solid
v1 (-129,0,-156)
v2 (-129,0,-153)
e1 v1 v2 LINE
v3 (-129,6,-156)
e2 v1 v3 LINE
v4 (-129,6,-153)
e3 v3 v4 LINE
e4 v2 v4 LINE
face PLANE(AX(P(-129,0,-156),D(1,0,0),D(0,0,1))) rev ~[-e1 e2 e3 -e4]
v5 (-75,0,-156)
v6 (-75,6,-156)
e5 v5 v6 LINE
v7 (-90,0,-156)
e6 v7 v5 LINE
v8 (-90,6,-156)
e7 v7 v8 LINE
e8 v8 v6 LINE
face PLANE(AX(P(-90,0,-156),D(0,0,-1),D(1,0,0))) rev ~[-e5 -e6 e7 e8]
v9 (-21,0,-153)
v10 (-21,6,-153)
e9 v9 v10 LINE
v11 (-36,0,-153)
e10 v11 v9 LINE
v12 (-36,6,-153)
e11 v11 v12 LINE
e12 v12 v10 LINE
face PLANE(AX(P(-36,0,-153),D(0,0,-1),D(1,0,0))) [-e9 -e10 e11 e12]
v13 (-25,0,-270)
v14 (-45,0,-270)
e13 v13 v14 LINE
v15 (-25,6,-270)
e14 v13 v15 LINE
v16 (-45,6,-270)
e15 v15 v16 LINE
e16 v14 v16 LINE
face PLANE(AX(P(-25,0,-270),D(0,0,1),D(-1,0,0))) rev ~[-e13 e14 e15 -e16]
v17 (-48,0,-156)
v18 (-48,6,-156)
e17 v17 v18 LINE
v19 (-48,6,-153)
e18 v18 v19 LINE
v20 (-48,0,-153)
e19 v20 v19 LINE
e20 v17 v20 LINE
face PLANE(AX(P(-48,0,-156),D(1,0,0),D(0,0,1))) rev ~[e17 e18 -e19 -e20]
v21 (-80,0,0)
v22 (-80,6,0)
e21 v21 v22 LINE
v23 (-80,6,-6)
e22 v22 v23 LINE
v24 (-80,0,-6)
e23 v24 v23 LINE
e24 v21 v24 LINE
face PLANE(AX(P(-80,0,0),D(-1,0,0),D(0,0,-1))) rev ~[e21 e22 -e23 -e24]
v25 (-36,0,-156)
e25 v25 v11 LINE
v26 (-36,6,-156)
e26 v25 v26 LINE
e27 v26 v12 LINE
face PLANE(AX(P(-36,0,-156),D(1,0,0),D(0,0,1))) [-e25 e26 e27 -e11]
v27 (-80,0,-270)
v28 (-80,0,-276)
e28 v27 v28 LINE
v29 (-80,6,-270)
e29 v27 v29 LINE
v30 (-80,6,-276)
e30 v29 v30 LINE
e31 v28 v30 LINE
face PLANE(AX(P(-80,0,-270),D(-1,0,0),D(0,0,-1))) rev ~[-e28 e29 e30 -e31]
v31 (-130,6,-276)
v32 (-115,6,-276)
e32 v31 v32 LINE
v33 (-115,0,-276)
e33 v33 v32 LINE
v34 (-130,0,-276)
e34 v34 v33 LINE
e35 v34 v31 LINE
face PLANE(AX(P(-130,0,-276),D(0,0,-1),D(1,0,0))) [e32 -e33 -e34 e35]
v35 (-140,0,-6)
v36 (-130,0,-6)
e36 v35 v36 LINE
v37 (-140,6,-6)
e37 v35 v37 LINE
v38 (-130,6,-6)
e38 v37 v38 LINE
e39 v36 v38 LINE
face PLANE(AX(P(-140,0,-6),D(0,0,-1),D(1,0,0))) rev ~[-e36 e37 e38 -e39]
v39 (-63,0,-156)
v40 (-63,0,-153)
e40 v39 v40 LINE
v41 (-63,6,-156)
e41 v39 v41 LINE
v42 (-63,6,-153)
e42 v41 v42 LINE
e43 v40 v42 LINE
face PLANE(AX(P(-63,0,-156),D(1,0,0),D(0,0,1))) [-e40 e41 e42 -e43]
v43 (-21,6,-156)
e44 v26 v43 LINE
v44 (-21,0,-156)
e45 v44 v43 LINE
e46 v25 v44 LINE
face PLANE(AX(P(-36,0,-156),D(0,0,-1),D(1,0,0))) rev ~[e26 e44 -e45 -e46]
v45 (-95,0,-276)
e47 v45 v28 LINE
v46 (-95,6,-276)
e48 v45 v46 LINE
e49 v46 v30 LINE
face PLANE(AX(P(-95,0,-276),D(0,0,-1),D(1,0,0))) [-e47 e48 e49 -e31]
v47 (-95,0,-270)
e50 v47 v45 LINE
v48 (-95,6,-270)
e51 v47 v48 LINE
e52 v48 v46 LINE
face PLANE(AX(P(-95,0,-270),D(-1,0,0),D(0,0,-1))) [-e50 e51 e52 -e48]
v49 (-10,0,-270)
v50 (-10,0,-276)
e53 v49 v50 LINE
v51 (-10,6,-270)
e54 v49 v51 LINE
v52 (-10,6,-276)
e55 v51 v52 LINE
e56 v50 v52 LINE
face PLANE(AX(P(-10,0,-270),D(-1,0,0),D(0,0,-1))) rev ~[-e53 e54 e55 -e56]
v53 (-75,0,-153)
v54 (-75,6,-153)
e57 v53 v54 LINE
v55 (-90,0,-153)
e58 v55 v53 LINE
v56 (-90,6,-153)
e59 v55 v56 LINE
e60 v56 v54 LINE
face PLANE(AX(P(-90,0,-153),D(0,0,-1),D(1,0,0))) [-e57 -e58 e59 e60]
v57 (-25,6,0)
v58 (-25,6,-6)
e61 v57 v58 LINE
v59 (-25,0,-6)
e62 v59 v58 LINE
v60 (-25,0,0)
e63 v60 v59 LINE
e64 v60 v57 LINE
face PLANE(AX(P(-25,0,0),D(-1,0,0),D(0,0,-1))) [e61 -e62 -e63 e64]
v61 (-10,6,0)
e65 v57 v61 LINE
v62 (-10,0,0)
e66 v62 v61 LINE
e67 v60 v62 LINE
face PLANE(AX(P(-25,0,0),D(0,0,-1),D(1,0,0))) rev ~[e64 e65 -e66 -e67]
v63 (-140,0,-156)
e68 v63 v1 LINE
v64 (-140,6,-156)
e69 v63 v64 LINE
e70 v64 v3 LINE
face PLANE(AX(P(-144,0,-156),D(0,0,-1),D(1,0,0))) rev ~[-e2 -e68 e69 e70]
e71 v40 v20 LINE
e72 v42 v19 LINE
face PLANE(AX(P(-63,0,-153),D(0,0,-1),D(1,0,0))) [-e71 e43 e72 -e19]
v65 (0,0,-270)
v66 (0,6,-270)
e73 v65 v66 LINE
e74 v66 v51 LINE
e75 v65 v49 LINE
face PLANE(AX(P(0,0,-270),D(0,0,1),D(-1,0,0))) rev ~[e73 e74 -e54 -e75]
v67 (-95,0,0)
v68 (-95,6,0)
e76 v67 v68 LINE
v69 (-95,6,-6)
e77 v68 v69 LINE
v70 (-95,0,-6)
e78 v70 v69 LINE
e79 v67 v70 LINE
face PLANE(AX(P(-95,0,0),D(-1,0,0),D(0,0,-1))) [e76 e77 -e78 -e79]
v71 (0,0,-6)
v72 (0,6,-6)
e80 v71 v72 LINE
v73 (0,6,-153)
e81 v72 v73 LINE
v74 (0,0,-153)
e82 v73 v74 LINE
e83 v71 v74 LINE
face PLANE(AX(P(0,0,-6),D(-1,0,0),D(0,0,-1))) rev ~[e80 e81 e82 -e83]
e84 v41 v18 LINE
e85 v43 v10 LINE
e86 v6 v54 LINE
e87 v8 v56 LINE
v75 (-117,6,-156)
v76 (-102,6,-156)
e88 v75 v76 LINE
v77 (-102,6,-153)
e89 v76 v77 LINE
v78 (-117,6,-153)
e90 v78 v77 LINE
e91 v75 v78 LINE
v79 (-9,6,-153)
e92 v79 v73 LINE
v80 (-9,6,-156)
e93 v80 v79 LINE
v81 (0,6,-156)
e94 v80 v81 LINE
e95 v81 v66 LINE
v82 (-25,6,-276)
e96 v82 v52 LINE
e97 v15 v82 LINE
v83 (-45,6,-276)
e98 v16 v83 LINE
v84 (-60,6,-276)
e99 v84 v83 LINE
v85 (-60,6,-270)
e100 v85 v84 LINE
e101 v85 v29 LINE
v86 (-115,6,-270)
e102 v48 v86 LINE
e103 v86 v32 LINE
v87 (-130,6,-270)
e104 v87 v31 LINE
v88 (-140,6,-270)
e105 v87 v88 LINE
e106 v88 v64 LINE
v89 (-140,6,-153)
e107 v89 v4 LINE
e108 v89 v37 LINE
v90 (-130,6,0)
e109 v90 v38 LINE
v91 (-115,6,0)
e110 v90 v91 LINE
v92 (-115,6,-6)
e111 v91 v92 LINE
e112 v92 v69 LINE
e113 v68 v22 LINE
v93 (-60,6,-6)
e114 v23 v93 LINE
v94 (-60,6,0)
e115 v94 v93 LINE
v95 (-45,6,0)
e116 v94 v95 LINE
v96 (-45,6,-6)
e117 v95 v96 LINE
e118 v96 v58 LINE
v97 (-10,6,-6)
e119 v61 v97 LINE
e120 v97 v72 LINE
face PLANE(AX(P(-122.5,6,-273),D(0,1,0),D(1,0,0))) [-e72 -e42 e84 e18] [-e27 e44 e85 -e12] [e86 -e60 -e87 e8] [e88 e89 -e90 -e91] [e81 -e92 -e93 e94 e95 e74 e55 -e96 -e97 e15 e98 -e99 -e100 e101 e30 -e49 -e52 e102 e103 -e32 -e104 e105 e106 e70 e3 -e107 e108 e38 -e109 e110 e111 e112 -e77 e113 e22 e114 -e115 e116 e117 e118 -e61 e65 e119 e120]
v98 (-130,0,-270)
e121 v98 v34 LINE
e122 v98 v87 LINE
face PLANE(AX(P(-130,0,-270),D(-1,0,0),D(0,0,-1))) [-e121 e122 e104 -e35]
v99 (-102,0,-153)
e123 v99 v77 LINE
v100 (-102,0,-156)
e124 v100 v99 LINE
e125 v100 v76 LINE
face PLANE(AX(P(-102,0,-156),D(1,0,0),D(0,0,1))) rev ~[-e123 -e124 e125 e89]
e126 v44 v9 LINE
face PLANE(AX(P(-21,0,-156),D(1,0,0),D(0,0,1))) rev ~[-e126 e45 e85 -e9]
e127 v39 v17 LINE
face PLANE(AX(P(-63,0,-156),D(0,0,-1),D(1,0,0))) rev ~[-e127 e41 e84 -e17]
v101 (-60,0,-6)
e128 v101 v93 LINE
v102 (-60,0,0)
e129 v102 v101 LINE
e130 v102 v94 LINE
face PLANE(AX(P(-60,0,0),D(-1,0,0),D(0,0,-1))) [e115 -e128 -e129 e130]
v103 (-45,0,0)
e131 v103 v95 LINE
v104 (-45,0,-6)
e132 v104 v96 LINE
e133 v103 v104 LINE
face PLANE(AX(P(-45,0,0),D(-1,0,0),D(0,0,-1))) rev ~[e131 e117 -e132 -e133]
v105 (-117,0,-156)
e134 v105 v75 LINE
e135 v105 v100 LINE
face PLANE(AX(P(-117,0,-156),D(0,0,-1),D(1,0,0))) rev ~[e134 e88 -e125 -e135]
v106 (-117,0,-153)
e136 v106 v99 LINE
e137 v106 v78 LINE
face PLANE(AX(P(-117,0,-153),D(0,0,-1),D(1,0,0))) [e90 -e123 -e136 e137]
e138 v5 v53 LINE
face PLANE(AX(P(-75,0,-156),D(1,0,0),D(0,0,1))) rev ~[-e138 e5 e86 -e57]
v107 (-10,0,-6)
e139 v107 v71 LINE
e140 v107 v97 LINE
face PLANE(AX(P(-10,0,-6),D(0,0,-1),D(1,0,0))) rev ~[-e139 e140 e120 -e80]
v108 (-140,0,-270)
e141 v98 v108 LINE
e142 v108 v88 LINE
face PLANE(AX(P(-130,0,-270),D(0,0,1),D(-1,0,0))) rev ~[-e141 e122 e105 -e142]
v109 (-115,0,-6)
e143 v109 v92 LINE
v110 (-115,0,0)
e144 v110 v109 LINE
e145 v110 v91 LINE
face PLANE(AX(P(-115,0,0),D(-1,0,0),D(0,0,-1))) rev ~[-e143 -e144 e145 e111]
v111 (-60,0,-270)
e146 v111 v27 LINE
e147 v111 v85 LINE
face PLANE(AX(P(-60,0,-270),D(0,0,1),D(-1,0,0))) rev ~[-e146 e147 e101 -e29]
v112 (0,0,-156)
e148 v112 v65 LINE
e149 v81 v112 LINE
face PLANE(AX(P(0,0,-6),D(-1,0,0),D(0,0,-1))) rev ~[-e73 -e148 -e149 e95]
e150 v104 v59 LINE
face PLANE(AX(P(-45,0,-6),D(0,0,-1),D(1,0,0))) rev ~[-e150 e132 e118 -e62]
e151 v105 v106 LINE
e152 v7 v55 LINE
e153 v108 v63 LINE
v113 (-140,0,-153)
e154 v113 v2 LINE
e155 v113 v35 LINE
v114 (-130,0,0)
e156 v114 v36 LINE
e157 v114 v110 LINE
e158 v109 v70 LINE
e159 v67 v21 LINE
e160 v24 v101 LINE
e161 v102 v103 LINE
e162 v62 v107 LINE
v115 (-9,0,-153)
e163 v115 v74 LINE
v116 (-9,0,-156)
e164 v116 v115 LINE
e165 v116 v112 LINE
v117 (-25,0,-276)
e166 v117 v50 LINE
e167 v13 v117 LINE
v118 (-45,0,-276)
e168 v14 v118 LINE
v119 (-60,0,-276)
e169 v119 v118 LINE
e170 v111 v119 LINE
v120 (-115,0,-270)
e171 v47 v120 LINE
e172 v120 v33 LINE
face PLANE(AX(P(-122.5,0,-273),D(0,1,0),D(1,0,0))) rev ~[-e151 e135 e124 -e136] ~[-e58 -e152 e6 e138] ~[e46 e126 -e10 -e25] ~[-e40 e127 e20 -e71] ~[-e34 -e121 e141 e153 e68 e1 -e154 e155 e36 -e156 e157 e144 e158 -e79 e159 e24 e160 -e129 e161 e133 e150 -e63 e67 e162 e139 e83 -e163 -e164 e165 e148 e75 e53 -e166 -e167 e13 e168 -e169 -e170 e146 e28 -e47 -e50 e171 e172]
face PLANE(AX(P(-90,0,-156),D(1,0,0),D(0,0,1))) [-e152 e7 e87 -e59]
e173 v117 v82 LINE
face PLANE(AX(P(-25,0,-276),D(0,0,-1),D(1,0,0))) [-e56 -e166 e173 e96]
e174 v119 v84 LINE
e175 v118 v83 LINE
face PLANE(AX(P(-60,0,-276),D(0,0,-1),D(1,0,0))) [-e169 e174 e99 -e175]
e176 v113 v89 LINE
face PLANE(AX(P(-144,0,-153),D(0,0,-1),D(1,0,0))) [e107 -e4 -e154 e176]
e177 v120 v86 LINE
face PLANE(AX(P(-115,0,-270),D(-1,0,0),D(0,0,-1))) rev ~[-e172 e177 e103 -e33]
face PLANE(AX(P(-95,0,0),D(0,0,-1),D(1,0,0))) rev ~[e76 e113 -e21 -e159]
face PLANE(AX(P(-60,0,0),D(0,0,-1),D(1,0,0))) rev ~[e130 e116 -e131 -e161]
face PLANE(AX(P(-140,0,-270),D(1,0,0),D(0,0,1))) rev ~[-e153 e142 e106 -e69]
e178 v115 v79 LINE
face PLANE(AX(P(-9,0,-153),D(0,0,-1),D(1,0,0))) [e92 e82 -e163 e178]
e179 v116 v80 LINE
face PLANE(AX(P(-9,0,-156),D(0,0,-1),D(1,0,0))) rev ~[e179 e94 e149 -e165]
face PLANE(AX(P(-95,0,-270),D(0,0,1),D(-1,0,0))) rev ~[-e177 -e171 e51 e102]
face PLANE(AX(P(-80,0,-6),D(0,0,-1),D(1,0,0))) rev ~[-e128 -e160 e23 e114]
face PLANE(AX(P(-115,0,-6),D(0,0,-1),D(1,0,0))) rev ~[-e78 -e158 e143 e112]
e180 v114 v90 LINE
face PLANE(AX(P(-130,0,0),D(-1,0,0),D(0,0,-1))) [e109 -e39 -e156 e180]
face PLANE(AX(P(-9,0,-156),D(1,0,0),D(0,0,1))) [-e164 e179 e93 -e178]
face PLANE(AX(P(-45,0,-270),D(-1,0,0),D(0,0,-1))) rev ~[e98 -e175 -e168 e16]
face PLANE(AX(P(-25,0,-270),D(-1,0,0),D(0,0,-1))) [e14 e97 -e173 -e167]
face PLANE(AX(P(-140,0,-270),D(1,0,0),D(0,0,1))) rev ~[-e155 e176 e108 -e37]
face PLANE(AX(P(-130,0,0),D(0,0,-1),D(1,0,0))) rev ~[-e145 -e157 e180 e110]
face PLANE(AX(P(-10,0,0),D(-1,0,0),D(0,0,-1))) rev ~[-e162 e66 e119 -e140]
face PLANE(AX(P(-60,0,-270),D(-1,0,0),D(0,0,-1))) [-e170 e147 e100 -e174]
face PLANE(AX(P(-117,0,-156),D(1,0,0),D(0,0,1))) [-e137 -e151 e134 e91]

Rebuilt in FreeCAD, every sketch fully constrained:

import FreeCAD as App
import Part
import Sketcher
from FreeCAD import Vector
Q = App.Units.Quantity


def add_polygon(sketch, points):
    """Adds a closed chain of lines whose ends are joined by coincident constraints."""
    first, n = sketch.GeometryCount, len(points)
    for a, b in zip(points, points[1:] + points[:1]):
        sketch.addGeometry(Part.LineSegment(App.Vector(*a, 0), App.Vector(*b, 0)), False)
    for i in range(n):
        sketch.addConstraint(Sketcher.Constraint("Coincident", first + i, 2, first + (i + 1) % n, 1))

doc = App.newDocument("Part")
body = doc.addObject("PartDesign::Body", "Body")

sketch1 = body.newObject("Sketcher::SketchObject", "Sketch")
sketch1.AttachmentSupport = (doc.getObject("XZ_Plane"), [""])
sketch1.MapMode = "FlatFace"
add_polygon(sketch1, [(-130, -276), (-130, -270), (-140, -270), (-140, -6), (-130, -6), (-130, 0), (-115, 0), (-115, -6), (-95, -6), (-95, 0), (-80, 0), (-80, -6), (-60, -6), (-60, 0), (-45, 0), (-45, -6), (-25, -6), (-25, 0), (-10, 0), (-10, -6), (0, -6), (0, -270), (-10, -270), (-10, -276), (-25, -276), (-25, -270), (-45, -270), (-45, -276), (-60, -276), (-60, -270), (-80, -270), (-80, -276), (-95, -276), (-95, -270), (-115, -270), (-115, -276)])
sketch1.addConstraint(Sketcher.Constraint("Vertical", 0))
sketch1.addConstraint(Sketcher.Constraint("Horizontal", 1))
sketch1.addConstraint(Sketcher.Constraint("Vertical", 2))
sketch1.addConstraint(Sketcher.Constraint("Horizontal", 3))
sketch1.addConstraint(Sketcher.Constraint("Vertical", 4))
sketch1.addConstraint(Sketcher.Constraint("Horizontal", 5))
sketch1.addConstraint(Sketcher.Constraint("Vertical", 6))
sketch1.addConstraint(Sketcher.Constraint("Horizontal", 7))
sketch1.addConstraint(Sketcher.Constraint("Vertical", 8))
sketch1.addConstraint(Sketcher.Constraint("Horizontal", 9))
sketch1.addConstraint(Sketcher.Constraint("Vertical", 10))
sketch1.addConstraint(Sketcher.Constraint("Horizontal", 11))
sketch1.addConstraint(Sketcher.Constraint("Vertical", 12))
sketch1.addConstraint(Sketcher.Constraint("Horizontal", 13))
sketch1.addConstraint(Sketcher.Constraint("Vertical", 14))
sketch1.addConstraint(Sketcher.Constraint("Horizontal", 15))
sketch1.addConstraint(Sketcher.Constraint("Vertical", 16))
sketch1.addConstraint(Sketcher.Constraint("Horizontal", 17))
sketch1.addConstraint(Sketcher.Constraint("Vertical", 18))
sketch1.addConstraint(Sketcher.Constraint("Horizontal", 19))
sketch1.addConstraint(Sketcher.Constraint("Vertical", 20))
sketch1.addConstraint(Sketcher.Constraint("Horizontal", 21))
sketch1.addConstraint(Sketcher.Constraint("Vertical", 22))
sketch1.addConstraint(Sketcher.Constraint("Horizontal", 23))
sketch1.addConstraint(Sketcher.Constraint("Vertical", 24))
sketch1.addConstraint(Sketcher.Constraint("Horizontal", 25))
sketch1.addConstraint(Sketcher.Constraint("Vertical", 26))
sketch1.addConstraint(Sketcher.Constraint("Horizontal", 27))
sketch1.addConstraint(Sketcher.Constraint("Vertical", 28))
sketch1.addConstraint(Sketcher.Constraint("Horizontal", 29))
sketch1.addConstraint(Sketcher.Constraint("Vertical", 30))
sketch1.addConstraint(Sketcher.Constraint("Horizontal", 31))
sketch1.addConstraint(Sketcher.Constraint("Vertical", 32))
sketch1.addConstraint(Sketcher.Constraint("Horizontal", 33))
sketch1.addConstraint(Sketcher.Constraint("Vertical", 34))
sketch1.addConstraint(Sketcher.Constraint("Horizontal", 35))
sketch1.addConstraint(Sketcher.Constraint("PointOnObject", 4, 2, -1))
sketch1.addConstraint(Sketcher.Constraint("PointOnObject", 8, 2, -1))
sketch1.addConstraint(Sketcher.Constraint("PointOnObject", 12, 2, -1))
sketch1.addConstraint(Sketcher.Constraint("PointOnObject", 16, 2, -1))
sketch1.addConstraint(Sketcher.Constraint("PointOnObject", 19, 2, -2))
sketch1.addConstraint(Sketcher.Constraint("Horizontal", 3, 2, 6, 2))
sketch1.addConstraint(Sketcher.Constraint("Horizontal", 7, 2, 10, 2))
sketch1.addConstraint(Sketcher.Constraint("Horizontal", 11, 2, 14, 2))
sketch1.addConstraint(Sketcher.Constraint("Horizontal", 15, 2, 18, 2))
sketch1.addConstraint(Sketcher.Constraint("Horizontal", 1, 2, 20, 2))
sketch1.addConstraint(Sketcher.Constraint("Horizontal", 21, 2, 24, 2))
sketch1.addConstraint(Sketcher.Constraint("Horizontal", 23, 2, 26, 2))
sketch1.addConstraint(Sketcher.Constraint("Horizontal", 25, 2, 28, 2))
sketch1.addConstraint(Sketcher.Constraint("Horizontal", 27, 2, 30, 2))
sketch1.addConstraint(Sketcher.Constraint("Horizontal", 29, 2, 32, 2))
sketch1.addConstraint(Sketcher.Constraint("Horizontal", 31, 2, 34, 2))
sketch1.addConstraint(Sketcher.Constraint("Vertical", 0, 2, 3, 2))
sketch1.addConstraint(Sketcher.Constraint("Vertical", 18, 2, 21, 2))
sketch1.addConstraint(Sketcher.Constraint("Vertical", 16, 2, 23, 2))
sketch1.addConstraint(Sketcher.Constraint("Vertical", 14, 2, 25, 2))
sketch1.addConstraint(Sketcher.Constraint("Vertical", 12, 2, 27, 2))
sketch1.addConstraint(Sketcher.Constraint("Vertical", 10, 2, 29, 2))
sketch1.addConstraint(Sketcher.Constraint("Vertical", 8, 2, 31, 2))
sketch1.addConstraint(Sketcher.Constraint("Vertical", 6, 2, 33, 2))
sketch1.addConstraint(Sketcher.Constraint("Equal", 5, 9))
sketch1.addConstraint(Sketcher.Constraint("Equal", 7, 11))
sketch1.addConstraint(Sketcher.Constraint("Equal", 9, 13))
sketch1.addConstraint(Sketcher.Constraint("Equal", 11, 15))
sketch1.addConstraint(Sketcher.Constraint("Equal", 13, 17))
sketch1.addConstraint(Sketcher.Constraint("Equal", 3, 19))
sketch1.addConstraint(Sketcher.Constraint("Equal", 0, 4))
sketch1.addConstraint(Sketcher.Constraint("DistanceX", 1, 2, 1, 1, Q("10 mm")))
sketch1.addConstraint(Sketcher.Constraint("DistanceX", 5, 1, 5, 2, Q("15 mm")))
sketch1.addConstraint(Sketcher.Constraint("DistanceX", 7, 1, 7, 2, Q("20 mm")))
sketch1.addConstraint(Sketcher.Constraint("DistanceY", 0, 1, 0, 2, Q("6 mm")))
sketch1.addConstraint(Sketcher.Constraint("DistanceY", 2, 1, 2, 2, Q("264 mm")))
pad1 = body.newObject("PartDesign::Pad", "Pad")
pad1.Profile = sketch1
pad1.Length = 6
pad1.Reversed = True

sketch2 = body.newObject("Sketcher::SketchObject", "Sketch001")
sketch2.AttachmentSupport = (doc.getObject("XZ_Plane"), [""])
sketch2.MapMode = "FlatFace"
add_polygon(sketch2, [(-9, -153), (-9, -156), (6, -156), (6, -153)])
add_polygon(sketch2, [(-36, -153), (-36, -156), (-21, -156), (-21, -153)])
add_polygon(sketch2, [(-63, -153), (-63, -156), (-48, -156), (-48, -153)])
add_polygon(sketch2, [(-90, -153), (-90, -156), (-75, -156), (-75, -153)])
add_polygon(sketch2, [(-117, -153), (-117, -156), (-102, -156), (-102, -153)])
add_polygon(sketch2, [(-144, -153), (-144, -156), (-129, -156), (-129, -153)])
sketch2.addConstraint(Sketcher.Constraint("Vertical", 0))
sketch2.addConstraint(Sketcher.Constraint("Horizontal", 1))
sketch2.addConstraint(Sketcher.Constraint("Vertical", 2))
sketch2.addConstraint(Sketcher.Constraint("Horizontal", 3))
sketch2.addConstraint(Sketcher.Constraint("Vertical", 4))
sketch2.addConstraint(Sketcher.Constraint("Horizontal", 5))
sketch2.addConstraint(Sketcher.Constraint("Vertical", 6))
sketch2.addConstraint(Sketcher.Constraint("Horizontal", 7))
sketch2.addConstraint(Sketcher.Constraint("Vertical", 8))
sketch2.addConstraint(Sketcher.Constraint("Horizontal", 9))
sketch2.addConstraint(Sketcher.Constraint("Vertical", 10))
sketch2.addConstraint(Sketcher.Constraint("Horizontal", 11))
sketch2.addConstraint(Sketcher.Constraint("Vertical", 12))
sketch2.addConstraint(Sketcher.Constraint("Horizontal", 13))
sketch2.addConstraint(Sketcher.Constraint("Vertical", 14))
sketch2.addConstraint(Sketcher.Constraint("Horizontal", 15))
sketch2.addConstraint(Sketcher.Constraint("Vertical", 16))
sketch2.addConstraint(Sketcher.Constraint("Horizontal", 17))
sketch2.addConstraint(Sketcher.Constraint("Vertical", 18))
sketch2.addConstraint(Sketcher.Constraint("Horizontal", 19))
sketch2.addConstraint(Sketcher.Constraint("Vertical", 20))
sketch2.addConstraint(Sketcher.Constraint("Horizontal", 21))
sketch2.addConstraint(Sketcher.Constraint("Vertical", 22))
sketch2.addConstraint(Sketcher.Constraint("Horizontal", 23))
sketch2.addConstraint(Sketcher.Constraint("Horizontal", 1, 2, 4, 2))
sketch2.addConstraint(Sketcher.Constraint("Horizontal", 3, 2, 6, 2))
sketch2.addConstraint(Sketcher.Constraint("Horizontal", 5, 2, 8, 2))
sketch2.addConstraint(Sketcher.Constraint("Horizontal", 7, 2, 10, 2))
sketch2.addConstraint(Sketcher.Constraint("Horizontal", 9, 2, 12, 2))
sketch2.addConstraint(Sketcher.Constraint("Horizontal", 11, 2, 14, 2))
sketch2.addConstraint(Sketcher.Constraint("Horizontal", 13, 2, 16, 2))
sketch2.addConstraint(Sketcher.Constraint("Horizontal", 15, 2, 18, 2))
sketch2.addConstraint(Sketcher.Constraint("Horizontal", 17, 2, 20, 2))
sketch2.addConstraint(Sketcher.Constraint("Horizontal", 19, 2, 22, 2))
sketch2.addConstraint(Sketcher.Constraint("Equal", 3, 5))
sketch2.addConstraint(Sketcher.Constraint("Equal", 7, 9))
sketch2.addConstraint(Sketcher.Constraint("Equal", 11, 13))
sketch2.addConstraint(Sketcher.Constraint("Equal", 15, 17))
sketch2.addConstraint(Sketcher.Constraint("Equal", 19, 21))
sketch2.addConstraint(Sketcher.Constraint("DistanceX", 1, 1, 1, 2, Q("15 mm")))
sketch2.addConstraint(Sketcher.Constraint("DistanceY", 0, 2, 0, 1, Q("3 mm")))
sketch2.addConstraint(Sketcher.Constraint("DistanceX", 0, 2, -1, 1, Q("9 mm")))
sketch2.addConstraint(Sketcher.Constraint("DistanceY", 0, 2, -1, 1, Q("156 mm")))
sketch2.addConstraint(Sketcher.Constraint("DistanceX", 4, 2, -1, 1, Q("36 mm")))
sketch2.addConstraint(Sketcher.Constraint("DistanceX", 8, 2, -1, 1, Q("63 mm")))
sketch2.addConstraint(Sketcher.Constraint("DistanceX", 12, 2, -1, 1, Q("90 mm")))
sketch2.addConstraint(Sketcher.Constraint("DistanceX", 16, 2, -1, 1, Q("117 mm")))
sketch2.addConstraint(Sketcher.Constraint("DistanceX", 20, 2, -1, 1, Q("144 mm")))
pocket1 = body.newObject("PartDesign::Pocket", "Pocket")
pocket1.Profile = sketch2
pocket1.Length = 6

doc.recompute()
